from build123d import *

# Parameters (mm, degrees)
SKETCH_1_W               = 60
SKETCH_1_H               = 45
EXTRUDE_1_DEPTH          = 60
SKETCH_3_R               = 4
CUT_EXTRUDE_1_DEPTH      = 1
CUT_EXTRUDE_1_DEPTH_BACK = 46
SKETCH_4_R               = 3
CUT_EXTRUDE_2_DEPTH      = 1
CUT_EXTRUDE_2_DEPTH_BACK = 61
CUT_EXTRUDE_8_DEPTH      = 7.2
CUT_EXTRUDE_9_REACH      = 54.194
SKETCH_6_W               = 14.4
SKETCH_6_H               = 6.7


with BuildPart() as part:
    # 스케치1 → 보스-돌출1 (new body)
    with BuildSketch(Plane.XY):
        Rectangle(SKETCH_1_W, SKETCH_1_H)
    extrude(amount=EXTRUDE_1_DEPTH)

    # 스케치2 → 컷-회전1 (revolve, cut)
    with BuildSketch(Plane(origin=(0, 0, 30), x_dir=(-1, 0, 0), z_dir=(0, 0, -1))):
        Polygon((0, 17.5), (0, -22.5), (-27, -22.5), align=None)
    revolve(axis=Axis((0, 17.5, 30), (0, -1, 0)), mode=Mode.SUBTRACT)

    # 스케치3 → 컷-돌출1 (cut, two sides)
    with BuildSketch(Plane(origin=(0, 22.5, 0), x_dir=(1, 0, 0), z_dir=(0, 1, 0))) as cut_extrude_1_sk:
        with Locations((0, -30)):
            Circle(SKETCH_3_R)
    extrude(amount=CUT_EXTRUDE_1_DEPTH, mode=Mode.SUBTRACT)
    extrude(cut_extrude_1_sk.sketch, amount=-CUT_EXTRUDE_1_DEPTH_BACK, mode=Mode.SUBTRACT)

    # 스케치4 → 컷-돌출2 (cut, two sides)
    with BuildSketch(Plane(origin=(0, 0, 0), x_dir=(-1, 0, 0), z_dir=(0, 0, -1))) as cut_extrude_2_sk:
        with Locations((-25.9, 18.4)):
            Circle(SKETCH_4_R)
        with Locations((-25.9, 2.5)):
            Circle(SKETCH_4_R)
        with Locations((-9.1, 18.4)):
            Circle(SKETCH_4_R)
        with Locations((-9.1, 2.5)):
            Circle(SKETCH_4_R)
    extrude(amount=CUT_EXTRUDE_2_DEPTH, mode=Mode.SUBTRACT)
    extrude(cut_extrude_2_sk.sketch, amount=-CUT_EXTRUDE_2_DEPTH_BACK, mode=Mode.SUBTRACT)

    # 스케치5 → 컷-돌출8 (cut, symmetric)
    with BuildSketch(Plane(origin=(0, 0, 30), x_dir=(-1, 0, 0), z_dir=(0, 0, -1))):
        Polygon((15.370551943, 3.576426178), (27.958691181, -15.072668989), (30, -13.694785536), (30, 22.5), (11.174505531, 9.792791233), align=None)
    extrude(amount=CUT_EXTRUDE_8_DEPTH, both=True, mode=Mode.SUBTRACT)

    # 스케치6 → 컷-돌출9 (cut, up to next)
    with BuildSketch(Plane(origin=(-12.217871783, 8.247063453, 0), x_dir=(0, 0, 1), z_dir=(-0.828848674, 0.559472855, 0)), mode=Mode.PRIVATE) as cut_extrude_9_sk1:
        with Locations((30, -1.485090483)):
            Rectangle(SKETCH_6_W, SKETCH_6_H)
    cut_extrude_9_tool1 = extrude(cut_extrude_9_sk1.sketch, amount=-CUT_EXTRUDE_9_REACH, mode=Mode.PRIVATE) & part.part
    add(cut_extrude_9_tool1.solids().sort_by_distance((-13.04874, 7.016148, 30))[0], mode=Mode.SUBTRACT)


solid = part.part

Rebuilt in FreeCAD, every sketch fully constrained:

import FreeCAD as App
import Part
import Sketcher

V = App.Vector
Q = App.Units.Quantity


def add_polygon(sketch, points):
    """Adds a closed chain of lines whose ends are joined by coincident constraints."""
    first, n = sketch.GeometryCount, len(points)
    for a, b in zip(points, points[1:] + points[:1]):
        sketch.addGeometry(Part.LineSegment(App.Vector(*a, 0), App.Vector(*b, 0)), False)
    for i in range(n):
        sketch.addConstraint(Sketcher.Constraint("Coincident", first + i, 2, first + (i + 1) % n, 1))

doc = App.newDocument("Part")
body = doc.addObject("PartDesign::Body", "Body")

# Sketch on XY plane
sketch1 = doc.addObject("Sketcher::SketchObject", "Sketch")
body.addObject(sketch1)
sketch1.AttachmentSupport = (doc.XY_Plane, [""])
sketch1.MapMode = "FlatFace"
add_polygon(sketch1, [(-30, 22.5), (-30, -22.5), (30, -22.5), (30, 22.5)])  # lines 0-3
sketch1.addConstraint([
    Sketcher.Constraint("Vertical", 0),
    Sketcher.Constraint("Horizontal", 1),
    Sketcher.Constraint("Vertical", 2),
    Sketcher.Constraint("Horizontal", 3),
    Sketcher.Constraint("Symmetric", 0, 2, 2, 2, -1, 1),
    Sketcher.Constraint("DistanceX", 1, 1, 1, 2, Q("60 mm")),
    Sketcher.Constraint("DistanceY", 0, 2, 0, 1, Q("45 mm")),
])
pad1 = doc.addObject("PartDesign::Pad", "Pad")
body.addObject(pad1)
pad1.Profile = sketch1
pad1.Length = 60

# Sketch on XY plane
sketch2 = doc.addObject("Sketcher::SketchObject", "Sketch001")
body.addObject(sketch2)
sketch2.AttachmentSupport = (doc.XY_Plane, [""])
sketch2.MapMode = "FlatFace"
sketch2.AttachmentOffset = App.Placement(V(0, 0, 30), App.Rotation())
add_polygon(sketch2, [(0, -22.5), (0, 17.5), (27, -22.5)])  # lines 0-2
sketch2.addConstraint([
    Sketcher.Constraint("Vertical", 0),
    Sketcher.Constraint("Horizontal", 2),
    Sketcher.Constraint("PointOnObject", 0, 2, -2),
    Sketcher.Constraint("DistanceX", 2, 2, 2, 1, Q("27 mm")),
    Sketcher.Constraint("DistanceY", 0, 1, 0, 2, Q("40 mm")),
    Sketcher.Constraint("DistanceY", -1, 1, 0, 2, Q("17.5 mm")),
])
groove = doc.addObject("PartDesign::Groove", "Groove")
body.addObject(groove)
groove.Profile = sketch2
groove.ReferenceAxis = (sketch2, ["V_Axis"])
groove.Angle = 360

# Sketch on XZ plane
sketch3 = doc.addObject("Sketcher::SketchObject", "Sketch002")
body.addObject(sketch3)
sketch3.AttachmentSupport = (doc.XZ_Plane, [""])
sketch3.MapMode = "FlatFace"
sketch3.AttachmentOffset = App.Placement(V(0, 0, -22.5), App.Rotation())
sketch3.addGeometry(Part.Circle(V(0, 30, 0), V(0, 0, 1), 4), False)
sketch3.addConstraint([
    Sketcher.Constraint("PointOnObject", 0, 3, -2),
    Sketcher.Constraint("Diameter", 0, Q("8 mm")),
    Sketcher.Constraint("DistanceY", -1, 1, 0, 3, Q("30 mm")),
])
pocket1 = doc.addObject("PartDesign::Pocket", "Pocket")
body.addObject(pocket1)
pocket1.Profile = sketch3
pocket1.Type = "ThroughAll"
pocket1.Midplane = True

# Sketch on XY plane
sketch4 = doc.addObject("Sketcher::SketchObject", "Sketch003")
body.addObject(sketch4)
sketch4.AttachmentSupport = (doc.XY_Plane, [""])
sketch4.MapMode = "FlatFace"
sketch4.addGeometry([
    Part.Circle(V(25.9, 18.4, 0), V(0, 0, 1), 3),
    Part.Circle(V(25.9, 2.5, 0), V(0, 0, 1), 3),
    Part.Circle(V(9.1, 18.4, 0), V(0, 0, 1), 3),
    Part.Circle(V(9.1, 2.5, 0), V(0, 0, 1), 3),
], False)
sketch4.addConstraint([
    Sketcher.Constraint("Equal", 0, 1),
    Sketcher.Constraint("Equal", 1, 2),
    Sketcher.Constraint("Equal", 2, 3),
    Sketcher.Constraint("Horizontal", 0, 3, 2, 3),
    Sketcher.Constraint("Horizontal", 1, 3, 3, 3),
    Sketcher.Constraint("Vertical", 0, 3, 1, 3),
    Sketcher.Constraint("Vertical", 2, 3, 3, 3),
    Sketcher.Constraint("Diameter", 0, Q("6 mm")),
    Sketcher.Constraint("DistanceX", -1, 1, 0, 3, Q("25.9 mm")),
    Sketcher.Constraint("DistanceY", -1, 1, 0, 3, Q("18.4 mm")),
    Sketcher.Constraint("DistanceY", -1, 1, 1, 3, Q("2.5 mm")),
    Sketcher.Constraint("DistanceX", -1, 1, 2, 3, Q("9.1 mm")),
])
pocket2 = doc.addObject("PartDesign::Pocket", "Pocket001")
body.addObject(pocket2)
pocket2.Profile = sketch4
pocket2.Type = "ThroughAll"
pocket2.Midplane = True

# Sketch on XY plane
sketch5 = doc.addObject("Sketcher::SketchObject", "Sketch004")
body.addObject(sketch5)
sketch5.AttachmentSupport = (doc.XY_Plane, [""])
sketch5.MapMode = "FlatFace"
sketch5.AttachmentOffset = App.Placement(V(0, 0, 30), App.Rotation())
add_polygon(sketch5, [(-15.370552, 3.576426), (-27.958691, -15.072669), (-30, -13.694786), (-30, 22.5), (-11.174506, 9.792791)])  # lines 0-4
sketch5.addConstraint([
    Sketcher.Constraint("Vertical", 2),
    Sketcher.Constraint("Perpendicular", 0, 1),
    Sketcher.Constraint("Parallel", 1, 3),
    Sketcher.Constraint("Perpendicular", 3, 4),
    Sketcher.Constraint("DistanceX", 1, 2, -1, 1, Q("30 mm")),
    Sketcher.Constraint("Distance", 0, Q("22.5 mm")),
    Sketcher.Constraint("Distance", 4, Q("7.5 mm")),
    Sketcher.Constraint("DistanceY", -1, 1, 2, 2, Q("22.5 mm")),
    Sketcher.Constraint("DistanceY", 2, 1, 2, 2, Q("36.194786 mm")),
    Sketcher.Constraint("DistanceX", 0, 2, -1, 1, Q("27.958691 mm")),
])
pocket3 = doc.addObject("PartDesign::Pocket", "Pocket002")
body.addObject(pocket3)
pocket3.Profile = sketch5
pocket3.Length = 14.4
pocket3.Midplane = True

# Sketch on an angled plane
sketch6 = doc.addObject("Sketcher::SketchObject", "Sketch005")
body.addObject(sketch6)
sketch6.Placement = App.Placement(V(-12.217872, 8.247063, 0), App.Rotation(V(0, 0, 1), V(0.559472855, 0.828848674, 0), V(-0.828848674, 0.559472855, 0), "ZXY"))
add_polygon(sketch6, [(22.8, 1.86491), (22.8, -4.83509), (37.2, -4.83509), (37.2, 1.86491)])  # lines 0-3
sketch6.addConstraint([
    Sketcher.Constraint("Vertical", 0),
    Sketcher.Constraint("Horizontal", 1),
    Sketcher.Constraint("Vertical", 2),
    Sketcher.Constraint("Horizontal", 3),
    Sketcher.Constraint("DistanceX", 1, 1, 1, 2, Q("14.4 mm")),
    Sketcher.Constraint("DistanceY", 0, 2, 0, 1, Q("6.7 mm")),
    Sketcher.Constraint("DistanceX", -1, 1, 0, 2, Q("22.8 mm")),
    Sketcher.Constraint("DistanceY", 0, 2, -1, 1, Q("4.83509 mm")),
])
pocket4 = doc.addObject("PartDesign::Pocket", "Pocket003")
body.addObject(pocket4)
pocket4.Profile = sketch6
pocket4.Type = "UpToFirst"

doc.recompute()
